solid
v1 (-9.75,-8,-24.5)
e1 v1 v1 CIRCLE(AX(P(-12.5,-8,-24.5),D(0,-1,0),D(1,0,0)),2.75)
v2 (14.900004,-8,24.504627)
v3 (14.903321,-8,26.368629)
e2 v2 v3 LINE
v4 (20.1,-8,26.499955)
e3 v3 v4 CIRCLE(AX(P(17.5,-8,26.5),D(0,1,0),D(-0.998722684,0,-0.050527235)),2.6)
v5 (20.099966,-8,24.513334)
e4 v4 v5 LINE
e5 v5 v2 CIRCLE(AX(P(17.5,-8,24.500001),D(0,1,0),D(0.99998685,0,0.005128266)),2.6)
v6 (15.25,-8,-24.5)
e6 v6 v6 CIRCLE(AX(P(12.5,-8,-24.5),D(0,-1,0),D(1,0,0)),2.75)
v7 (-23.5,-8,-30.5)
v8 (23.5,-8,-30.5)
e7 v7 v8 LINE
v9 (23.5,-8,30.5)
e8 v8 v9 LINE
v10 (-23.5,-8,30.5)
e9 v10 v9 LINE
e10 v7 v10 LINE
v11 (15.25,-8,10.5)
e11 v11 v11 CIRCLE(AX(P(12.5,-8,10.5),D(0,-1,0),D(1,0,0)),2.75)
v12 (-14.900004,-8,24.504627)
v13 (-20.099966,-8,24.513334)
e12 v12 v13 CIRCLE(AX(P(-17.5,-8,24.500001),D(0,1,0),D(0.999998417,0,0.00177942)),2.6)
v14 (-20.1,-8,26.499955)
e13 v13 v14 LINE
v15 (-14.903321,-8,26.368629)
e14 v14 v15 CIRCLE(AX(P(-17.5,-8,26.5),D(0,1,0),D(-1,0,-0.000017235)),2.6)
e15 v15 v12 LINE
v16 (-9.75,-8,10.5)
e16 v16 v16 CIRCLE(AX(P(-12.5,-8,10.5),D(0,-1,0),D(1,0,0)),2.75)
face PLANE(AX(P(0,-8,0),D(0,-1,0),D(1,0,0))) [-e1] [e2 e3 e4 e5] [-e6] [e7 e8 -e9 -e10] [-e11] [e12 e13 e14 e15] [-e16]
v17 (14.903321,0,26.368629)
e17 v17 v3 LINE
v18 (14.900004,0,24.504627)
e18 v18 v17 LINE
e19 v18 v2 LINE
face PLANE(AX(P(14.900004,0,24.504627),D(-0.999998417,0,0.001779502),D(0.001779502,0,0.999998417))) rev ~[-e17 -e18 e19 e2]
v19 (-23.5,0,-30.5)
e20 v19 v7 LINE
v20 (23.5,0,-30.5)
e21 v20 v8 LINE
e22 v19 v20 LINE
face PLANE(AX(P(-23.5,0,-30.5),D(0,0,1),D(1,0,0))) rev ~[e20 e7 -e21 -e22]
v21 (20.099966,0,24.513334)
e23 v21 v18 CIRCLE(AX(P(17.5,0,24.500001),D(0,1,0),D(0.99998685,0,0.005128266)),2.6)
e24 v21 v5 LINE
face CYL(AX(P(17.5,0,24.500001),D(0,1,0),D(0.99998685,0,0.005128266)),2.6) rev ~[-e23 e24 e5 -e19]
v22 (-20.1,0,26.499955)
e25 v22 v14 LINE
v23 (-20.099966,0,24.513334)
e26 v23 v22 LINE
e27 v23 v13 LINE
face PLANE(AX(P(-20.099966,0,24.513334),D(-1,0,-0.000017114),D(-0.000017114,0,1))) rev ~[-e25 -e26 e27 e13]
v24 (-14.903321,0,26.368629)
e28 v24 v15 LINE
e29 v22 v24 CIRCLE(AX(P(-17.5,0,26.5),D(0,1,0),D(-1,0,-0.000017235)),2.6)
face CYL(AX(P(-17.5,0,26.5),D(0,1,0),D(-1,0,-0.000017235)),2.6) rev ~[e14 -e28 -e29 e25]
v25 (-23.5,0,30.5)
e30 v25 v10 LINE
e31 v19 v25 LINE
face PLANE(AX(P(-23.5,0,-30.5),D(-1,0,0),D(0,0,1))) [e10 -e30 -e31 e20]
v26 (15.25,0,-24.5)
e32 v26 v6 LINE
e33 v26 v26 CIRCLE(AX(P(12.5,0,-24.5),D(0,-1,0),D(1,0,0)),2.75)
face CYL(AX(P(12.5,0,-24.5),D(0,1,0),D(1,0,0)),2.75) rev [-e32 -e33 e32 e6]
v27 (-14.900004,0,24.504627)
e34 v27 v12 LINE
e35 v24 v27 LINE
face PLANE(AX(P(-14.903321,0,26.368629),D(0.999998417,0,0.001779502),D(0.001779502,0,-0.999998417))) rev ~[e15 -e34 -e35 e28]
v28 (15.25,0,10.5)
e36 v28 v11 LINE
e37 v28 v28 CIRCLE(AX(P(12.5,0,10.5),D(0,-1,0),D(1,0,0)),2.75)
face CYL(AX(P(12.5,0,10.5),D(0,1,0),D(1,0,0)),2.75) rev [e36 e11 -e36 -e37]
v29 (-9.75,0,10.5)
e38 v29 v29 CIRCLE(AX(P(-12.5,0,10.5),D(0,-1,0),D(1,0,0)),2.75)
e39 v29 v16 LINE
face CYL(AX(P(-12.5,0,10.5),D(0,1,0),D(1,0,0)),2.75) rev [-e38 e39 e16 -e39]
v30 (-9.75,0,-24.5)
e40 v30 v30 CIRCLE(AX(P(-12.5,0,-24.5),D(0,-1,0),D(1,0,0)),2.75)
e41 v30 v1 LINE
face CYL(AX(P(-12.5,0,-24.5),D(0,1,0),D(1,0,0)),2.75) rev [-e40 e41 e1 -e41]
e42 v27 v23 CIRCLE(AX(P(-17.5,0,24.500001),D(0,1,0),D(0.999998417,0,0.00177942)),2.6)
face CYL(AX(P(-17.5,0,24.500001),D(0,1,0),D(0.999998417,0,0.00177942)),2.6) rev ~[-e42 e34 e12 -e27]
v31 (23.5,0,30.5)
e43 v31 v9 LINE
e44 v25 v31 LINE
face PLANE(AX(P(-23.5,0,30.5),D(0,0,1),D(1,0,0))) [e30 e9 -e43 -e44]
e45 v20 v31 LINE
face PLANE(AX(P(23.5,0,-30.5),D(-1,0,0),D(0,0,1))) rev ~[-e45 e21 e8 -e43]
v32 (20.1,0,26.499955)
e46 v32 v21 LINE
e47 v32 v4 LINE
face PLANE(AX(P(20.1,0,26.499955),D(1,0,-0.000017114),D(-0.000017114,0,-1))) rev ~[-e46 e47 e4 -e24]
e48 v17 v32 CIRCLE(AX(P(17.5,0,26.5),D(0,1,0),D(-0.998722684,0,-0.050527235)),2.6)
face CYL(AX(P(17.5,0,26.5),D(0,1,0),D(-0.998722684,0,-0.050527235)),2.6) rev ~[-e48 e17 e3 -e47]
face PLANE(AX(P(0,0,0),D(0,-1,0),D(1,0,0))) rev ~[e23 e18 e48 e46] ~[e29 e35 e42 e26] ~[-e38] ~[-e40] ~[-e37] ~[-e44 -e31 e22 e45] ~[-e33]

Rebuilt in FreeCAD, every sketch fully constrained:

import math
import FreeCAD as App
import Part
import Sketcher

V = App.Vector


def add_polygon(sketch, points):
    """Adds a closed chain of lines whose ends are joined by coincident constraints."""
    first, n = sketch.GeometryCount, len(points)
    for a, b in zip(points, points[1:] + points[:1]):
        sketch.addGeometry(Part.LineSegment(App.Vector(*a, 0), App.Vector(*b, 0)), False)
    for i in range(n):
        sketch.addConstraint(Sketcher.Constraint("Coincident", first + i, 2, first + (i + 1) % n, 1))

doc = App.newDocument("Part")
body = doc.addObject("PartDesign::Body", "Body")

# Sketch on XZ plane
sketch1 = body.newObject("Sketcher::SketchObject", "Sketch")
sketch1.AttachmentSupport = (doc.getObject("XZ_Plane"), [""])
sketch1.MapMode = "FlatFace"
add_polygon(sketch1, [(-23.5, 30.5), (-23.5, -30.5), (23.5, -30.5), (23.5, 30.5)])  # lines 0-3
sketch1.addGeometry(Part.Circle(V(-12.5, -24.5, 0), V(0, 0, 1), 2.8), False)  # 4
sketch1.addGeometry(Part.Circle(V(12.5, -24.5, 0), V(0, 0, 1), 2.8), False)  # 5
sketch1.addGeometry(Part.Circle(V(-12.5, 10.5, 0), V(0, 0, 1), 2.8), False)  # 6
sketch1.addGeometry(Part.LineSegment(V(-14.9, 26.4, 0), V(-14.9, 24.5, 0)), False)  # 7
sketch1.addGeometry(Part.ArcOfCircle(Part.Circle(V(-17.5, 24.5, 0), V(0, 0, 1), 2.6), math.radians(180), math.radians(360)), False)  # 8
sketch1.addGeometry(Part.LineSegment(V(-20.1, 24.5, 0), V(-20.1, 26.5, 0)), False)  # 9
sketch1.addGeometry(Part.ArcOfCircle(Part.Circle(V(-17.5, 26.5, 0), V(0, 0, 1), 2.6), math.radians(-3), math.radians(180)), False)  # 10
sketch1.addGeometry(Part.Circle(V(12.5, 10.5, 0), V(0, 0, 1), 2.8), False)  # 11
sketch1.addGeometry(Part.ArcOfCircle(Part.Circle(V(17.5, 26.5, 0), V(0, 0, 1), 2.6), math.radians(0), math.radians(183)), False)  # 12
sketch1.addGeometry(Part.LineSegment(V(20.1, 26.5, 0), V(20.1, 24.5, 0)), False)  # 13
sketch1.addGeometry(Part.ArcOfCircle(Part.Circle(V(17.5, 24.5, 0), V(0, 0, 1), 2.6), math.radians(180), math.radians(360)), False)  # 14
sketch1.addGeometry(Part.LineSegment(V(14.9, 24.5, 0), V(14.9, 26.4, 0)), False)  # 15
sketch1.addConstraint(Sketcher.Constraint("Tangent", 7, 2, 8, 2))
sketch1.addConstraint(Sketcher.Constraint("Coincident", 8, 1, 9, 1))
sketch1.addConstraint(Sketcher.Constraint("Tangent", 9, 2, 10, 2))
sketch1.addConstraint(Sketcher.Constraint("Coincident", 10, 1, 7, 1))
sketch1.addConstraint(Sketcher.Constraint("Tangent", 12, 1, 13, 1))
sketch1.addConstraint(Sketcher.Constraint("Coincident", 13, 2, 14, 2))
sketch1.addConstraint(Sketcher.Constraint("Tangent", 14, 1, 15, 1))
sketch1.addConstraint(Sketcher.Constraint("Coincident", 15, 2, 12, 2))
sketch1.addConstraint(Sketcher.Constraint("Vertical", 0))
sketch1.addConstraint(Sketcher.Constraint("Horizontal", 1))
sketch1.addConstraint(Sketcher.Constraint("Vertical", 2))
sketch1.addConstraint(Sketcher.Constraint("Horizontal", 3))
sketch1.addConstraint(Sketcher.Constraint("Equal", 4, 5))
sketch1.addConstraint(Sketcher.Constraint("Equal", 5, 6))
sketch1.addConstraint(Sketcher.Constraint("Equal", 8, 10))
sketch1.addConstraint(Sketcher.Constraint("Equal", 6, 11))
sketch1.addConstraint(Sketcher.Constraint("Equal", 10, 12))
sketch1.addConstraint(Sketcher.Constraint("Equal", 12, 14))
sketch1.addConstraint(Sketcher.Constraint("Symmetric", 0, 2, 2, 2, -1, 1))
sketch1.addConstraint(Sketcher.Constraint("Symmetric", 4, 3, 5, 3, -2))
sketch1.addConstraint(Sketcher.Constraint("Symmetric", 6, 3, 11, 3, -2))
sketch1.addConstraint(Sketcher.Constraint("Symmetric", 10, 3, 12, 3, -2))
sketch1.addConstraint(Sketcher.Constraint("Symmetric", 8, 3, 14, 3, -2))
sketch1.addConstraint(Sketcher.Constraint("Horizontal", 9, 2, 12, 1))
sketch1.addConstraint(Sketcher.Constraint("Horizontal", 7, 2, 14, 1))
sketch1.addConstraint(Sketcher.Constraint("Vertical", 4, 3, 6, 3))
sketch1.addConstraint(Sketcher.Constraint("Vertical", 8, 3, 10, 3))
sketch1.addConstraint(Sketcher.Constraint("Diameter", 4, 5.5))
sketch1.addConstraint(Sketcher.Constraint("Radius", 8, 2.6))
sketch1.addConstraint(Sketcher.Constraint("DistanceX", 1, 1, 1, 2, 47.0))
sketch1.addConstraint(Sketcher.Constraint("DistanceY", 0, 2, 0, 1, 61.0))
sketch1.addConstraint(Sketcher.Constraint("DistanceX", 4, 3, 5, 3, 25.0))
sketch1.addConstraint(Sketcher.Constraint("DistanceY", 4, 3, 6, 3, 35.0))
sketch1.addConstraint(Sketcher.Constraint("DistanceX", 8, 3, 6, 3, 5.0))
sketch1.addConstraint(Sketcher.Constraint("DistanceY", 6, 3, 8, 3, 14.000001))
sketch1.addConstraint(Sketcher.Constraint("DistanceY", 8, 3, 10, 3, 1.999999))
sketch1.addConstraint(Sketcher.Constraint("DistanceY", 0, 2, 4, 3, 6.0))
sketch1.addConstraint(Sketcher.Constraint("DistanceY", 7, 2, 10, 1, 1.864002))
sketch1.addConstraint(Sketcher.Constraint("Distance", 9, 1.986621))
pad1 = body.newObject("PartDesign::Pad", "Pad")
pad1.Profile = sketch1
pad1.Length = 8

doc.recompute()
